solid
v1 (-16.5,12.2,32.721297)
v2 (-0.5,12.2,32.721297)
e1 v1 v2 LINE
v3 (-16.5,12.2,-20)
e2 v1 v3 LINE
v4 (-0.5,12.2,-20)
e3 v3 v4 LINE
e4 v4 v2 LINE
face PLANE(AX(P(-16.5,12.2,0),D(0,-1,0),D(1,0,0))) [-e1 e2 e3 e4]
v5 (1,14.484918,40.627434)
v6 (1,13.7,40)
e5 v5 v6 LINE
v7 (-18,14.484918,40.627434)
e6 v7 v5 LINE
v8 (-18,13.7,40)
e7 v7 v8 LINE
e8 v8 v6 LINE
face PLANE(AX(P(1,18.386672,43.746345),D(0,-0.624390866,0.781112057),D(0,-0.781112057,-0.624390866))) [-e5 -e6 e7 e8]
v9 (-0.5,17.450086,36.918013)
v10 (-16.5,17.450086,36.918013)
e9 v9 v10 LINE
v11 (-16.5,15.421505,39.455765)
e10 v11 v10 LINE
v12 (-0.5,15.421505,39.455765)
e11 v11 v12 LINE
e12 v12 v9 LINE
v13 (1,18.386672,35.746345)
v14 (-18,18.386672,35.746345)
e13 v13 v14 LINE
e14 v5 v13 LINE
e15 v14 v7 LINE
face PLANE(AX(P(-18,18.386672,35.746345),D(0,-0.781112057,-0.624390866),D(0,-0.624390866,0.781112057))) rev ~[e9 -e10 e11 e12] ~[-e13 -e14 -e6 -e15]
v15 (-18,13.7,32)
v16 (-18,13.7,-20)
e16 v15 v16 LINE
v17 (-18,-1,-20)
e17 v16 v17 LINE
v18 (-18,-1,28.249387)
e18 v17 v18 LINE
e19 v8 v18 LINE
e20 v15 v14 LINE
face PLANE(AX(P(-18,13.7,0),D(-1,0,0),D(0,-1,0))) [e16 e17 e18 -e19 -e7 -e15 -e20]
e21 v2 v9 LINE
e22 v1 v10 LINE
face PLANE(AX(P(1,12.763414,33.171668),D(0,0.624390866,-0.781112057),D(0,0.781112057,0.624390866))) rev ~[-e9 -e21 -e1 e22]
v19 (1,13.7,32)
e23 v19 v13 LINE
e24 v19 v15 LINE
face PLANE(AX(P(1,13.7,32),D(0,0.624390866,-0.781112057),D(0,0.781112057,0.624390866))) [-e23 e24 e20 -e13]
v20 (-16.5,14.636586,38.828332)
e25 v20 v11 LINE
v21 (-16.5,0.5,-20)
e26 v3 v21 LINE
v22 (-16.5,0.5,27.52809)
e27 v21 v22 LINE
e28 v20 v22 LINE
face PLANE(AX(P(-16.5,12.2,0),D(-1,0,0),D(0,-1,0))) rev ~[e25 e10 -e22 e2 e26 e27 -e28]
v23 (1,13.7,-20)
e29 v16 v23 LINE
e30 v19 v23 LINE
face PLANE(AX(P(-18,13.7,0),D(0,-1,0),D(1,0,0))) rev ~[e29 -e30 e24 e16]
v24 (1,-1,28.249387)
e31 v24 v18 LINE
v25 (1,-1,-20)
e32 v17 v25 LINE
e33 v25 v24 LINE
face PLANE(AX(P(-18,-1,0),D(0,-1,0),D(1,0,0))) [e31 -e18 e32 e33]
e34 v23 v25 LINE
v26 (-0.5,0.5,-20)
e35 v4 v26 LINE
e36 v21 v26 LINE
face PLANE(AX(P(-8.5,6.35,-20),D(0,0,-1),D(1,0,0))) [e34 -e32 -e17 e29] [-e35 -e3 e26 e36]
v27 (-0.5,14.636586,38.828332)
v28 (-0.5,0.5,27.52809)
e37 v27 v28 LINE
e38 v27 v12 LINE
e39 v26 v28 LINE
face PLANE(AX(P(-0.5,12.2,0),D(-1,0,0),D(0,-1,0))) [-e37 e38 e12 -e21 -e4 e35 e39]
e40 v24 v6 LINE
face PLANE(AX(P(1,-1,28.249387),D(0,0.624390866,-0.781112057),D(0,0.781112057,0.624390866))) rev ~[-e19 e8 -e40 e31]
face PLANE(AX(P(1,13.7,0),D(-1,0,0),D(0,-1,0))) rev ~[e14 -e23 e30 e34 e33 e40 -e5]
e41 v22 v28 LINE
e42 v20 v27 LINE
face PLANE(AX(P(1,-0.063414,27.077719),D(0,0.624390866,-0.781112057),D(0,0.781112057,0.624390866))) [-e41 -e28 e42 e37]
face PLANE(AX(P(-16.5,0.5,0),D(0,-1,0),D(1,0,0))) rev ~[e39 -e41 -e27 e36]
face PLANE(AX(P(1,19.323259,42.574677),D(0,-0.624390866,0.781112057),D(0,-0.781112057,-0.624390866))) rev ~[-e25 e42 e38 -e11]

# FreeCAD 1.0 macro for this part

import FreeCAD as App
import Part
import Sketcher

V = App.Vector


def faces_at(feature, points):
    """Names of the faces that lie closest to the given points."""
    faces = feature.Shape.Faces
    near = lambda p: min(range(len(faces)), key=lambda i: faces[i].distToShape(Part.Vertex(*p))[0])
    return sorted({f"Face{near(p) + 1}" for p in points})


def add_polygon(sketch, points):
    """Adds a closed chain of lines whose ends are joined by coincident constraints."""
    first, n = sketch.GeometryCount, len(points)
    for a, b in zip(points, points[1:] + points[:1]):
        sketch.addGeometry(Part.LineSegment(App.Vector(*a, 0), App.Vector(*b, 0)), False)
    for i in range(n):
        sketch.addConstraint(Sketcher.Constraint("Coincident", first + i, 2, first + (i + 1) % n, 1))

doc = App.newDocument("Part")
body = doc.addObject("PartDesign::Body", "Body")

sketch1 = body.newObject("Sketcher::SketchObject", "Sketch")
sketch1.AttachmentSupport = (doc.getObject("XY_Plane"), [""])
sketch1.MapMode = "FlatFace"
add_polygon(sketch1, [(-18, 14), (-18, -1), (1, -1), (1, 14)])
sketch1.addConstraint(Sketcher.Constraint("Vertical", 0))
sketch1.addConstraint(Sketcher.Constraint("Horizontal", 1))
sketch1.addConstraint(Sketcher.Constraint("Vertical", 2))
sketch1.addConstraint(Sketcher.Constraint("Horizontal", 3))
sketch1.addConstraint(Sketcher.Constraint("DistanceX", 1, 1, 1, 2, 19.0))
sketch1.addConstraint(Sketcher.Constraint("DistanceY", 0, 2, 0, 1, 14.7))
sketch1.addConstraint(Sketcher.Constraint("DistanceX", 0, 2, -1, 1, 18.0))
sketch1.addConstraint(Sketcher.Constraint("DistanceY", 0, 2, -1, 1, 1.0))
pad1 = body.newObject("PartDesign::Pad", "Pad")
pad1.Profile = sketch1
pad1.Length = 40

sketch2 = body.newObject("Sketcher::SketchObject", "Sketch001")
sketch2.AttachmentSupport = (doc.getObject("YZ_Plane"), [""])
sketch2.MapMode = "FlatFace"
sketch2.AttachmentOffset = App.Placement(V(0, 0, 1), App.Rotation())
add_polygon(sketch2, [(-1, 40), (-1, 28), (14, 40)])
sketch2.addConstraint(Sketcher.Constraint("Vertical", 0))
sketch2.addConstraint(Sketcher.Constraint("Horizontal", 2))
sketch2.addConstraint(Sketcher.Constraint("DistanceX", 2, 2, 2, 1, 14.7))
sketch2.addConstraint(Sketcher.Constraint("DistanceX", 0, 2, -1, 1, 1.0))
sketch2.addConstraint(Sketcher.Constraint("DistanceY", -1, 1, 1, 2, 40.0))
sketch2.addConstraint(Sketcher.Constraint("DistanceY", 0, 2, 0, 1, 11.750613))
pocket1 = body.newObject("PartDesign::Pocket", "Pocket")
pocket1.Profile = sketch2
pocket1.Type = "ThroughAll"

sketch3 = body.newObject("Sketcher::SketchObject", "Sketch002")
sketch3.AttachmentSupport = (doc.getObject("YZ_Plane"), [""])
sketch3.MapMode = "FlatFace"
sketch3.AttachmentOffset = App.Placement(V(0, 0, 1), App.Rotation())
add_polygon(sketch3, [(18, 44), (14, 40), (14, 32), (18, 36)])
sketch3.addConstraint(Sketcher.Constraint("Vertical", 1))
sketch3.addConstraint(Sketcher.Constraint("Vertical", 3))
sketch3.addConstraint(Sketcher.Constraint("Parallel", 0, 2))
sketch3.addConstraint(Sketcher.Constraint("DistanceY", 1, 2, 1, 1, 8.0))
sketch3.addConstraint(Sketcher.Constraint("Distance", 0, 6.0))
sketch3.addConstraint(Sketcher.Constraint("DistanceY", -1, 1, 0, 2, 40.0))
sketch3.addConstraint(Sketcher.Constraint("DistanceX", -1, 1, 0, 2, 13.7))
sketch3.addConstraint(Sketcher.Constraint("DistanceX", -1, 1, 2, 2, 18.386672))
pad2 = body.newObject("PartDesign::Pad", "Pad001")
pad2.Profile = sketch3
pad2.Length = 19
pad2.Reversed = True
doc.recompute()

thickness = body.newObject("PartDesign::Thickness", "Thickness")
thickness.Base = (pad2, faces_at(pad2, [(-8.5, 18.387, 39.746), (-8.5, 6.35, 0)]))
thickness.Value = 1.5
thickness.Reversed = True
thickness.Join = "Intersection"

sketch4 = body.newObject("Sketcher::SketchObject", "Sketch003")
sketch4.AttachmentSupport = (doc.getObject("YZ_Plane"), [""])
sketch4.MapMode = "FlatFace"
sketch4.AttachmentOffset = App.Placement(V(0, 0, -18), App.Rotation())
add_polygon(sketch4, [(18.4, 43.7), (18.4, 35.7), (14.5, 40.6)])
sketch4.addConstraint(Sketcher.Constraint("Vertical", 0))
sketch4.addConstraint(Sketcher.Constraint("Perpendicular", 1, 2))
sketch4.addConstraint(Sketcher.Constraint("DistanceY", 0, 2, 0, 1, 8.0))
sketch4.addConstraint(Sketcher.Constraint("DistanceX", -1, 1, 1, 2, 14.484918))
sketch4.addConstraint(Sketcher.Constraint("DistanceY", 0, 2, 1, 2, 4.881088))
sketch4.addConstraint(Sketcher.Constraint("DistanceY", -1, 1, 0, 2, 35.746345))
pocket2 = body.newObject("PartDesign::Pocket", "Pocket001")
pocket2.Profile = sketch4
pocket2.Type = "ThroughAll"
pocket2.Reversed = True

sketch5 = body.newObject("Sketcher::SketchObject", "Sketch004")
sketch5.AttachmentSupport = (doc.getObject("XY_Plane"), [""])
sketch5.MapMode = "FlatFace"
add_polygon(sketch5, [(-18, -1), (-18, 14), (1, 14), (1, -1)])
add_polygon(sketch5, [(0, 12), (-16, 12), (-16, 0), (0, 0)])
sketch5.addConstraint(Sketcher.Constraint("Vertical", 0))
sketch5.addConstraint(Sketcher.Constraint("Horizontal", 1))
sketch5.addConstraint(Sketcher.Constraint("Vertical", 2))
sketch5.addConstraint(Sketcher.Constraint("Horizontal", 3))
sketch5.addConstraint(Sketcher.Constraint("Horizontal", 4))
sketch5.addConstraint(Sketcher.Constraint("Vertical", 5))
sketch5.addConstraint(Sketcher.Constraint("Horizontal", 6))
sketch5.addConstraint(Sketcher.Constraint("Vertical", 7))
sketch5.addConstraint(Sketcher.Constraint("DistanceX", 1, 1, 1, 2, 19.0))
sketch5.addConstraint(Sketcher.Constraint("DistanceX", 4, 2, 4, 1, 16.0))
sketch5.addConstraint(Sketcher.Constraint("DistanceY", 0, 1, 0, 2, 14.7))
sketch5.addConstraint(Sketcher.Constraint("DistanceY", 5, 2, 5, 1, 11.7))
sketch5.addConstraint(Sketcher.Constraint("DistanceX", 0, 2, -1, 1, 18.0))
sketch5.addConstraint(Sketcher.Constraint("DistanceY", 2, 2, -1, 1, 1.0))
sketch5.addConstraint(Sketcher.Constraint("DistanceX", 4, 2, -1, 1, 16.5))
sketch5.addConstraint(Sketcher.Constraint("DistanceY", -1, 1, 4, 2, 12.2))
pad3 = body.newObject("PartDesign::Pad", "Pad002")
pad3.Profile = sketch5
pad3.Length = 20
pad3.Reversed = True

doc.recompute()
